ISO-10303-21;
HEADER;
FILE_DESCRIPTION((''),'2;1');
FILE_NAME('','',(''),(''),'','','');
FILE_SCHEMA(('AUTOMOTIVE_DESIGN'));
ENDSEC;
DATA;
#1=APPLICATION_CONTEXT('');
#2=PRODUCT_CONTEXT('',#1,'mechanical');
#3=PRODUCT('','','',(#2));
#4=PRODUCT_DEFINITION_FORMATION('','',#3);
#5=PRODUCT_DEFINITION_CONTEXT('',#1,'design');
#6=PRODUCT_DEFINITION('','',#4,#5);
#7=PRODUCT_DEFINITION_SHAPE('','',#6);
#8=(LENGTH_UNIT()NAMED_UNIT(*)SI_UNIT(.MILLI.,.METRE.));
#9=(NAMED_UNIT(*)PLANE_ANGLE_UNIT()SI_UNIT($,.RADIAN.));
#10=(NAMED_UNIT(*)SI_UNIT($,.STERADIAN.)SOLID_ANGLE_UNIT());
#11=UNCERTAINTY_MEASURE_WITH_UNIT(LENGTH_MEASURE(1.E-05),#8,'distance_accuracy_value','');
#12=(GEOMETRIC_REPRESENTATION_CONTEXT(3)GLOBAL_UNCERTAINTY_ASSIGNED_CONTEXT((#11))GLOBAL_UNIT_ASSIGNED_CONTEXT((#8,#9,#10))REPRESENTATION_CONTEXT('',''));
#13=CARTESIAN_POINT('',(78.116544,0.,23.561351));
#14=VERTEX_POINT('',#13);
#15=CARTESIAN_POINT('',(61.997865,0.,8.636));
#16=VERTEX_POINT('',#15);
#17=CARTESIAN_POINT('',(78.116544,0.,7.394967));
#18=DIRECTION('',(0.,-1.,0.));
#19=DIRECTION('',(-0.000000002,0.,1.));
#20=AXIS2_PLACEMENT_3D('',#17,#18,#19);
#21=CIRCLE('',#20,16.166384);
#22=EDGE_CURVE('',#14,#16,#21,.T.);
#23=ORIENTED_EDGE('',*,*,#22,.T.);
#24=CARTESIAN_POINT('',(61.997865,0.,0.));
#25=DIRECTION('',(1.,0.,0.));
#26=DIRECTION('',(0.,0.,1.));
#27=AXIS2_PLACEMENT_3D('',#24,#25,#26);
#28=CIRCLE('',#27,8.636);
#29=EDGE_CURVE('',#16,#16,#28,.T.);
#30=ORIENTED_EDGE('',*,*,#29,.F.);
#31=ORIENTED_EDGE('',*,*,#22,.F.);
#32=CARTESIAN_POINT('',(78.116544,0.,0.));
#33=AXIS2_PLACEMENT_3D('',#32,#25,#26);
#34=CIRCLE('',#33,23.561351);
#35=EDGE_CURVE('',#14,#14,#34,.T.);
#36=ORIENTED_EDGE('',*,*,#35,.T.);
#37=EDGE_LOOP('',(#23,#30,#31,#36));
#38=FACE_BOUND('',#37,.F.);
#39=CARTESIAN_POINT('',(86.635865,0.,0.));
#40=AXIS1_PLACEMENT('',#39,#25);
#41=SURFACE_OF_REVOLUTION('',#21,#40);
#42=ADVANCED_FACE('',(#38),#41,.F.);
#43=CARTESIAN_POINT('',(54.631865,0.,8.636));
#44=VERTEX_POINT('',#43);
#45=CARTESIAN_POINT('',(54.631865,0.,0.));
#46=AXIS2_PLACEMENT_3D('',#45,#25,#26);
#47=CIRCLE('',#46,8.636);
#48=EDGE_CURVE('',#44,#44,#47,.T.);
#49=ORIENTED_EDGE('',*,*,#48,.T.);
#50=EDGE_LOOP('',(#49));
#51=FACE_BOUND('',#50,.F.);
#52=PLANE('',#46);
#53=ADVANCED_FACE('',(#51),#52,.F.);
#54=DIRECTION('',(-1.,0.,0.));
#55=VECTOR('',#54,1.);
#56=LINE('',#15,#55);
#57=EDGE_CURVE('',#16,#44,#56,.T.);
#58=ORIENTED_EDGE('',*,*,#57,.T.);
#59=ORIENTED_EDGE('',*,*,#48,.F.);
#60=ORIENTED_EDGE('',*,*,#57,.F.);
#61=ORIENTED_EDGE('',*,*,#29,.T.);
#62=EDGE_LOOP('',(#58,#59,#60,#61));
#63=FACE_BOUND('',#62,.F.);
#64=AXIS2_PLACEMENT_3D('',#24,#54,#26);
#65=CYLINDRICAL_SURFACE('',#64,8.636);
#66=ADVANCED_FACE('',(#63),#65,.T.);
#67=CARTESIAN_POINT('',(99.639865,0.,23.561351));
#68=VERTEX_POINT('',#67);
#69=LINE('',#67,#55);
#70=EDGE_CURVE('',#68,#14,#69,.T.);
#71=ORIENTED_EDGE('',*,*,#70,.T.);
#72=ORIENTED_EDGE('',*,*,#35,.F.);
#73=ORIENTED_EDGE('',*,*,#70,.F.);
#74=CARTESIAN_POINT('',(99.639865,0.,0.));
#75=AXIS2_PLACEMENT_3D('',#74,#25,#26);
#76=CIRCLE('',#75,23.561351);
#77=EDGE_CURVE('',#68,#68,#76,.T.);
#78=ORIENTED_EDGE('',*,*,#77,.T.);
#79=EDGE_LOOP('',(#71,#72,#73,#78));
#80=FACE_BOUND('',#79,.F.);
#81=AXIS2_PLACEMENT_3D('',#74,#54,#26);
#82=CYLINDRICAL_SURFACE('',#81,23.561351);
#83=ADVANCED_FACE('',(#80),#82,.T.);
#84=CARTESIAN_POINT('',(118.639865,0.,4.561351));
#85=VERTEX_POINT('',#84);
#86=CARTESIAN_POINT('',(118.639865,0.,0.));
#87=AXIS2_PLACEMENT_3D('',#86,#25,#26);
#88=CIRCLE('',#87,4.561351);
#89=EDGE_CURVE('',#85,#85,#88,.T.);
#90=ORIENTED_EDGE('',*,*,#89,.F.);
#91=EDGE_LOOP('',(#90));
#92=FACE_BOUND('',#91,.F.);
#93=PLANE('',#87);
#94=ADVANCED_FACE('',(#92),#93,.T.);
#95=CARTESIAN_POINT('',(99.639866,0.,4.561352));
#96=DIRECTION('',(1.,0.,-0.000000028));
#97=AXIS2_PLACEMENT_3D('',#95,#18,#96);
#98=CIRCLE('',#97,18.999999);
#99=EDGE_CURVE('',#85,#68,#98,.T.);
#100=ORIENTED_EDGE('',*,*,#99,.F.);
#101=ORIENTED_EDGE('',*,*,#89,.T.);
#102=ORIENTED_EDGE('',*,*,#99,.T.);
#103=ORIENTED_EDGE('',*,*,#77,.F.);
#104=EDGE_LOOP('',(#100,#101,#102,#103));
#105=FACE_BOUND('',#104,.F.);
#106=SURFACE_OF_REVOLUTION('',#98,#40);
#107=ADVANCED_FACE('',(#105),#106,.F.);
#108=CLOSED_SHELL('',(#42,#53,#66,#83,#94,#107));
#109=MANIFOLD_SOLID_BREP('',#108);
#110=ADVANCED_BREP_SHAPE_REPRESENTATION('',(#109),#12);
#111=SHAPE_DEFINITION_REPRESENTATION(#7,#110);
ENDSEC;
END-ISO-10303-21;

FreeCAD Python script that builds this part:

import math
import FreeCAD as App
import Part
import Sketcher
from FreeCAD import Vector
Q = App.Units.Quantity

doc = App.newDocument("Part")
body = doc.addObject("PartDesign::Body", "Body")

# Sketch on XZ plane
sketch1 = body.newObject("Sketcher::SketchObject", "Sketch")
sketch1.AttachmentSupport = (doc.getObject("XZ_Plane"), [""])
sketch1.MapMode = "FlatFace"
sketch1.addGeometry([
    Part.LineSegment(Vector(54.631865, 8.636, 0), Vector(54.631865, 0, 0)),  # 0
    Part.LineSegment(Vector(54.631865, 0, 0), Vector(118.639865, 0, 0)),  # 1
    Part.LineSegment(Vector(118.639865, 0, 0), Vector(118.639865, 4.561351, 0)),  # 2
    Part.ArcOfCircle(Part.Circle(Vector(99.639866, 4.561352, 0), Vector(0, 0, 1), 18.999999), math.radians(-0.000002), math.radians(90.000002)),  # 3
    Part.LineSegment(Vector(99.639865, 23.561351, 0), Vector(78.116544, 23.561351, 0)),  # 4
    Part.ArcOfCircle(Part.Circle(Vector(78.116544, 7.394967, 0), Vector(0, 0, 1), 16.166384), math.radians(90), math.radians(175.597285)),  # 5
    Part.LineSegment(Vector(61.997865, 8.636, 0), Vector(54.631865, 8.636, 0)),  # 6
], False)
sketch1.addConstraint([
    Sketcher.Constraint("Coincident", 0, 2, 1, 1),
    Sketcher.Constraint("Coincident", 1, 2, 2, 1),
    Sketcher.Constraint("Tangent", 2, 2, 3, 1),
    Sketcher.Constraint("Tangent", 3, 2, 4, 1),
    Sketcher.Constraint("Tangent", 4, 2, 5, 1),
    Sketcher.Constraint("Coincident", 5, 2, 6, 1),
    Sketcher.Constraint("Coincident", 6, 2, 0, 1),
    Sketcher.Constraint("Vertical", 0),
    Sketcher.Constraint("Horizontal", 1),
    Sketcher.Constraint("Vertical", 2),
    Sketcher.Constraint("Horizontal", 4),
    Sketcher.Constraint("Horizontal", 6),
    Sketcher.Constraint("PointOnObject", 0, 2, -1),
    Sketcher.Constraint("DistanceX", 1, 1, 1, 2, Q("2.52 in")),
    Sketcher.Constraint("DistanceX", 6, 2, 6, 1, Q("0.29 in")),
    Sketcher.Constraint("DistanceY", 0, 2, 0, 1, Q("0.34 in")),
    Sketcher.Constraint("Radius", 3, 18.999999),
    Sketcher.Constraint("Radius", 5, 16.166384),
    Sketcher.Constraint("DistanceX", 4, 2, 4, 1, 21.523321),
    Sketcher.Constraint("DistanceX", -1, 1, 3, 3, 99.639866),
])
revolution = body.newObject("PartDesign::Revolution", "Revolution")
revolution.Profile = sketch1
revolution.ReferenceAxis = (sketch1, ["H_Axis"])
revolution.Angle = 360

doc.recompute()
